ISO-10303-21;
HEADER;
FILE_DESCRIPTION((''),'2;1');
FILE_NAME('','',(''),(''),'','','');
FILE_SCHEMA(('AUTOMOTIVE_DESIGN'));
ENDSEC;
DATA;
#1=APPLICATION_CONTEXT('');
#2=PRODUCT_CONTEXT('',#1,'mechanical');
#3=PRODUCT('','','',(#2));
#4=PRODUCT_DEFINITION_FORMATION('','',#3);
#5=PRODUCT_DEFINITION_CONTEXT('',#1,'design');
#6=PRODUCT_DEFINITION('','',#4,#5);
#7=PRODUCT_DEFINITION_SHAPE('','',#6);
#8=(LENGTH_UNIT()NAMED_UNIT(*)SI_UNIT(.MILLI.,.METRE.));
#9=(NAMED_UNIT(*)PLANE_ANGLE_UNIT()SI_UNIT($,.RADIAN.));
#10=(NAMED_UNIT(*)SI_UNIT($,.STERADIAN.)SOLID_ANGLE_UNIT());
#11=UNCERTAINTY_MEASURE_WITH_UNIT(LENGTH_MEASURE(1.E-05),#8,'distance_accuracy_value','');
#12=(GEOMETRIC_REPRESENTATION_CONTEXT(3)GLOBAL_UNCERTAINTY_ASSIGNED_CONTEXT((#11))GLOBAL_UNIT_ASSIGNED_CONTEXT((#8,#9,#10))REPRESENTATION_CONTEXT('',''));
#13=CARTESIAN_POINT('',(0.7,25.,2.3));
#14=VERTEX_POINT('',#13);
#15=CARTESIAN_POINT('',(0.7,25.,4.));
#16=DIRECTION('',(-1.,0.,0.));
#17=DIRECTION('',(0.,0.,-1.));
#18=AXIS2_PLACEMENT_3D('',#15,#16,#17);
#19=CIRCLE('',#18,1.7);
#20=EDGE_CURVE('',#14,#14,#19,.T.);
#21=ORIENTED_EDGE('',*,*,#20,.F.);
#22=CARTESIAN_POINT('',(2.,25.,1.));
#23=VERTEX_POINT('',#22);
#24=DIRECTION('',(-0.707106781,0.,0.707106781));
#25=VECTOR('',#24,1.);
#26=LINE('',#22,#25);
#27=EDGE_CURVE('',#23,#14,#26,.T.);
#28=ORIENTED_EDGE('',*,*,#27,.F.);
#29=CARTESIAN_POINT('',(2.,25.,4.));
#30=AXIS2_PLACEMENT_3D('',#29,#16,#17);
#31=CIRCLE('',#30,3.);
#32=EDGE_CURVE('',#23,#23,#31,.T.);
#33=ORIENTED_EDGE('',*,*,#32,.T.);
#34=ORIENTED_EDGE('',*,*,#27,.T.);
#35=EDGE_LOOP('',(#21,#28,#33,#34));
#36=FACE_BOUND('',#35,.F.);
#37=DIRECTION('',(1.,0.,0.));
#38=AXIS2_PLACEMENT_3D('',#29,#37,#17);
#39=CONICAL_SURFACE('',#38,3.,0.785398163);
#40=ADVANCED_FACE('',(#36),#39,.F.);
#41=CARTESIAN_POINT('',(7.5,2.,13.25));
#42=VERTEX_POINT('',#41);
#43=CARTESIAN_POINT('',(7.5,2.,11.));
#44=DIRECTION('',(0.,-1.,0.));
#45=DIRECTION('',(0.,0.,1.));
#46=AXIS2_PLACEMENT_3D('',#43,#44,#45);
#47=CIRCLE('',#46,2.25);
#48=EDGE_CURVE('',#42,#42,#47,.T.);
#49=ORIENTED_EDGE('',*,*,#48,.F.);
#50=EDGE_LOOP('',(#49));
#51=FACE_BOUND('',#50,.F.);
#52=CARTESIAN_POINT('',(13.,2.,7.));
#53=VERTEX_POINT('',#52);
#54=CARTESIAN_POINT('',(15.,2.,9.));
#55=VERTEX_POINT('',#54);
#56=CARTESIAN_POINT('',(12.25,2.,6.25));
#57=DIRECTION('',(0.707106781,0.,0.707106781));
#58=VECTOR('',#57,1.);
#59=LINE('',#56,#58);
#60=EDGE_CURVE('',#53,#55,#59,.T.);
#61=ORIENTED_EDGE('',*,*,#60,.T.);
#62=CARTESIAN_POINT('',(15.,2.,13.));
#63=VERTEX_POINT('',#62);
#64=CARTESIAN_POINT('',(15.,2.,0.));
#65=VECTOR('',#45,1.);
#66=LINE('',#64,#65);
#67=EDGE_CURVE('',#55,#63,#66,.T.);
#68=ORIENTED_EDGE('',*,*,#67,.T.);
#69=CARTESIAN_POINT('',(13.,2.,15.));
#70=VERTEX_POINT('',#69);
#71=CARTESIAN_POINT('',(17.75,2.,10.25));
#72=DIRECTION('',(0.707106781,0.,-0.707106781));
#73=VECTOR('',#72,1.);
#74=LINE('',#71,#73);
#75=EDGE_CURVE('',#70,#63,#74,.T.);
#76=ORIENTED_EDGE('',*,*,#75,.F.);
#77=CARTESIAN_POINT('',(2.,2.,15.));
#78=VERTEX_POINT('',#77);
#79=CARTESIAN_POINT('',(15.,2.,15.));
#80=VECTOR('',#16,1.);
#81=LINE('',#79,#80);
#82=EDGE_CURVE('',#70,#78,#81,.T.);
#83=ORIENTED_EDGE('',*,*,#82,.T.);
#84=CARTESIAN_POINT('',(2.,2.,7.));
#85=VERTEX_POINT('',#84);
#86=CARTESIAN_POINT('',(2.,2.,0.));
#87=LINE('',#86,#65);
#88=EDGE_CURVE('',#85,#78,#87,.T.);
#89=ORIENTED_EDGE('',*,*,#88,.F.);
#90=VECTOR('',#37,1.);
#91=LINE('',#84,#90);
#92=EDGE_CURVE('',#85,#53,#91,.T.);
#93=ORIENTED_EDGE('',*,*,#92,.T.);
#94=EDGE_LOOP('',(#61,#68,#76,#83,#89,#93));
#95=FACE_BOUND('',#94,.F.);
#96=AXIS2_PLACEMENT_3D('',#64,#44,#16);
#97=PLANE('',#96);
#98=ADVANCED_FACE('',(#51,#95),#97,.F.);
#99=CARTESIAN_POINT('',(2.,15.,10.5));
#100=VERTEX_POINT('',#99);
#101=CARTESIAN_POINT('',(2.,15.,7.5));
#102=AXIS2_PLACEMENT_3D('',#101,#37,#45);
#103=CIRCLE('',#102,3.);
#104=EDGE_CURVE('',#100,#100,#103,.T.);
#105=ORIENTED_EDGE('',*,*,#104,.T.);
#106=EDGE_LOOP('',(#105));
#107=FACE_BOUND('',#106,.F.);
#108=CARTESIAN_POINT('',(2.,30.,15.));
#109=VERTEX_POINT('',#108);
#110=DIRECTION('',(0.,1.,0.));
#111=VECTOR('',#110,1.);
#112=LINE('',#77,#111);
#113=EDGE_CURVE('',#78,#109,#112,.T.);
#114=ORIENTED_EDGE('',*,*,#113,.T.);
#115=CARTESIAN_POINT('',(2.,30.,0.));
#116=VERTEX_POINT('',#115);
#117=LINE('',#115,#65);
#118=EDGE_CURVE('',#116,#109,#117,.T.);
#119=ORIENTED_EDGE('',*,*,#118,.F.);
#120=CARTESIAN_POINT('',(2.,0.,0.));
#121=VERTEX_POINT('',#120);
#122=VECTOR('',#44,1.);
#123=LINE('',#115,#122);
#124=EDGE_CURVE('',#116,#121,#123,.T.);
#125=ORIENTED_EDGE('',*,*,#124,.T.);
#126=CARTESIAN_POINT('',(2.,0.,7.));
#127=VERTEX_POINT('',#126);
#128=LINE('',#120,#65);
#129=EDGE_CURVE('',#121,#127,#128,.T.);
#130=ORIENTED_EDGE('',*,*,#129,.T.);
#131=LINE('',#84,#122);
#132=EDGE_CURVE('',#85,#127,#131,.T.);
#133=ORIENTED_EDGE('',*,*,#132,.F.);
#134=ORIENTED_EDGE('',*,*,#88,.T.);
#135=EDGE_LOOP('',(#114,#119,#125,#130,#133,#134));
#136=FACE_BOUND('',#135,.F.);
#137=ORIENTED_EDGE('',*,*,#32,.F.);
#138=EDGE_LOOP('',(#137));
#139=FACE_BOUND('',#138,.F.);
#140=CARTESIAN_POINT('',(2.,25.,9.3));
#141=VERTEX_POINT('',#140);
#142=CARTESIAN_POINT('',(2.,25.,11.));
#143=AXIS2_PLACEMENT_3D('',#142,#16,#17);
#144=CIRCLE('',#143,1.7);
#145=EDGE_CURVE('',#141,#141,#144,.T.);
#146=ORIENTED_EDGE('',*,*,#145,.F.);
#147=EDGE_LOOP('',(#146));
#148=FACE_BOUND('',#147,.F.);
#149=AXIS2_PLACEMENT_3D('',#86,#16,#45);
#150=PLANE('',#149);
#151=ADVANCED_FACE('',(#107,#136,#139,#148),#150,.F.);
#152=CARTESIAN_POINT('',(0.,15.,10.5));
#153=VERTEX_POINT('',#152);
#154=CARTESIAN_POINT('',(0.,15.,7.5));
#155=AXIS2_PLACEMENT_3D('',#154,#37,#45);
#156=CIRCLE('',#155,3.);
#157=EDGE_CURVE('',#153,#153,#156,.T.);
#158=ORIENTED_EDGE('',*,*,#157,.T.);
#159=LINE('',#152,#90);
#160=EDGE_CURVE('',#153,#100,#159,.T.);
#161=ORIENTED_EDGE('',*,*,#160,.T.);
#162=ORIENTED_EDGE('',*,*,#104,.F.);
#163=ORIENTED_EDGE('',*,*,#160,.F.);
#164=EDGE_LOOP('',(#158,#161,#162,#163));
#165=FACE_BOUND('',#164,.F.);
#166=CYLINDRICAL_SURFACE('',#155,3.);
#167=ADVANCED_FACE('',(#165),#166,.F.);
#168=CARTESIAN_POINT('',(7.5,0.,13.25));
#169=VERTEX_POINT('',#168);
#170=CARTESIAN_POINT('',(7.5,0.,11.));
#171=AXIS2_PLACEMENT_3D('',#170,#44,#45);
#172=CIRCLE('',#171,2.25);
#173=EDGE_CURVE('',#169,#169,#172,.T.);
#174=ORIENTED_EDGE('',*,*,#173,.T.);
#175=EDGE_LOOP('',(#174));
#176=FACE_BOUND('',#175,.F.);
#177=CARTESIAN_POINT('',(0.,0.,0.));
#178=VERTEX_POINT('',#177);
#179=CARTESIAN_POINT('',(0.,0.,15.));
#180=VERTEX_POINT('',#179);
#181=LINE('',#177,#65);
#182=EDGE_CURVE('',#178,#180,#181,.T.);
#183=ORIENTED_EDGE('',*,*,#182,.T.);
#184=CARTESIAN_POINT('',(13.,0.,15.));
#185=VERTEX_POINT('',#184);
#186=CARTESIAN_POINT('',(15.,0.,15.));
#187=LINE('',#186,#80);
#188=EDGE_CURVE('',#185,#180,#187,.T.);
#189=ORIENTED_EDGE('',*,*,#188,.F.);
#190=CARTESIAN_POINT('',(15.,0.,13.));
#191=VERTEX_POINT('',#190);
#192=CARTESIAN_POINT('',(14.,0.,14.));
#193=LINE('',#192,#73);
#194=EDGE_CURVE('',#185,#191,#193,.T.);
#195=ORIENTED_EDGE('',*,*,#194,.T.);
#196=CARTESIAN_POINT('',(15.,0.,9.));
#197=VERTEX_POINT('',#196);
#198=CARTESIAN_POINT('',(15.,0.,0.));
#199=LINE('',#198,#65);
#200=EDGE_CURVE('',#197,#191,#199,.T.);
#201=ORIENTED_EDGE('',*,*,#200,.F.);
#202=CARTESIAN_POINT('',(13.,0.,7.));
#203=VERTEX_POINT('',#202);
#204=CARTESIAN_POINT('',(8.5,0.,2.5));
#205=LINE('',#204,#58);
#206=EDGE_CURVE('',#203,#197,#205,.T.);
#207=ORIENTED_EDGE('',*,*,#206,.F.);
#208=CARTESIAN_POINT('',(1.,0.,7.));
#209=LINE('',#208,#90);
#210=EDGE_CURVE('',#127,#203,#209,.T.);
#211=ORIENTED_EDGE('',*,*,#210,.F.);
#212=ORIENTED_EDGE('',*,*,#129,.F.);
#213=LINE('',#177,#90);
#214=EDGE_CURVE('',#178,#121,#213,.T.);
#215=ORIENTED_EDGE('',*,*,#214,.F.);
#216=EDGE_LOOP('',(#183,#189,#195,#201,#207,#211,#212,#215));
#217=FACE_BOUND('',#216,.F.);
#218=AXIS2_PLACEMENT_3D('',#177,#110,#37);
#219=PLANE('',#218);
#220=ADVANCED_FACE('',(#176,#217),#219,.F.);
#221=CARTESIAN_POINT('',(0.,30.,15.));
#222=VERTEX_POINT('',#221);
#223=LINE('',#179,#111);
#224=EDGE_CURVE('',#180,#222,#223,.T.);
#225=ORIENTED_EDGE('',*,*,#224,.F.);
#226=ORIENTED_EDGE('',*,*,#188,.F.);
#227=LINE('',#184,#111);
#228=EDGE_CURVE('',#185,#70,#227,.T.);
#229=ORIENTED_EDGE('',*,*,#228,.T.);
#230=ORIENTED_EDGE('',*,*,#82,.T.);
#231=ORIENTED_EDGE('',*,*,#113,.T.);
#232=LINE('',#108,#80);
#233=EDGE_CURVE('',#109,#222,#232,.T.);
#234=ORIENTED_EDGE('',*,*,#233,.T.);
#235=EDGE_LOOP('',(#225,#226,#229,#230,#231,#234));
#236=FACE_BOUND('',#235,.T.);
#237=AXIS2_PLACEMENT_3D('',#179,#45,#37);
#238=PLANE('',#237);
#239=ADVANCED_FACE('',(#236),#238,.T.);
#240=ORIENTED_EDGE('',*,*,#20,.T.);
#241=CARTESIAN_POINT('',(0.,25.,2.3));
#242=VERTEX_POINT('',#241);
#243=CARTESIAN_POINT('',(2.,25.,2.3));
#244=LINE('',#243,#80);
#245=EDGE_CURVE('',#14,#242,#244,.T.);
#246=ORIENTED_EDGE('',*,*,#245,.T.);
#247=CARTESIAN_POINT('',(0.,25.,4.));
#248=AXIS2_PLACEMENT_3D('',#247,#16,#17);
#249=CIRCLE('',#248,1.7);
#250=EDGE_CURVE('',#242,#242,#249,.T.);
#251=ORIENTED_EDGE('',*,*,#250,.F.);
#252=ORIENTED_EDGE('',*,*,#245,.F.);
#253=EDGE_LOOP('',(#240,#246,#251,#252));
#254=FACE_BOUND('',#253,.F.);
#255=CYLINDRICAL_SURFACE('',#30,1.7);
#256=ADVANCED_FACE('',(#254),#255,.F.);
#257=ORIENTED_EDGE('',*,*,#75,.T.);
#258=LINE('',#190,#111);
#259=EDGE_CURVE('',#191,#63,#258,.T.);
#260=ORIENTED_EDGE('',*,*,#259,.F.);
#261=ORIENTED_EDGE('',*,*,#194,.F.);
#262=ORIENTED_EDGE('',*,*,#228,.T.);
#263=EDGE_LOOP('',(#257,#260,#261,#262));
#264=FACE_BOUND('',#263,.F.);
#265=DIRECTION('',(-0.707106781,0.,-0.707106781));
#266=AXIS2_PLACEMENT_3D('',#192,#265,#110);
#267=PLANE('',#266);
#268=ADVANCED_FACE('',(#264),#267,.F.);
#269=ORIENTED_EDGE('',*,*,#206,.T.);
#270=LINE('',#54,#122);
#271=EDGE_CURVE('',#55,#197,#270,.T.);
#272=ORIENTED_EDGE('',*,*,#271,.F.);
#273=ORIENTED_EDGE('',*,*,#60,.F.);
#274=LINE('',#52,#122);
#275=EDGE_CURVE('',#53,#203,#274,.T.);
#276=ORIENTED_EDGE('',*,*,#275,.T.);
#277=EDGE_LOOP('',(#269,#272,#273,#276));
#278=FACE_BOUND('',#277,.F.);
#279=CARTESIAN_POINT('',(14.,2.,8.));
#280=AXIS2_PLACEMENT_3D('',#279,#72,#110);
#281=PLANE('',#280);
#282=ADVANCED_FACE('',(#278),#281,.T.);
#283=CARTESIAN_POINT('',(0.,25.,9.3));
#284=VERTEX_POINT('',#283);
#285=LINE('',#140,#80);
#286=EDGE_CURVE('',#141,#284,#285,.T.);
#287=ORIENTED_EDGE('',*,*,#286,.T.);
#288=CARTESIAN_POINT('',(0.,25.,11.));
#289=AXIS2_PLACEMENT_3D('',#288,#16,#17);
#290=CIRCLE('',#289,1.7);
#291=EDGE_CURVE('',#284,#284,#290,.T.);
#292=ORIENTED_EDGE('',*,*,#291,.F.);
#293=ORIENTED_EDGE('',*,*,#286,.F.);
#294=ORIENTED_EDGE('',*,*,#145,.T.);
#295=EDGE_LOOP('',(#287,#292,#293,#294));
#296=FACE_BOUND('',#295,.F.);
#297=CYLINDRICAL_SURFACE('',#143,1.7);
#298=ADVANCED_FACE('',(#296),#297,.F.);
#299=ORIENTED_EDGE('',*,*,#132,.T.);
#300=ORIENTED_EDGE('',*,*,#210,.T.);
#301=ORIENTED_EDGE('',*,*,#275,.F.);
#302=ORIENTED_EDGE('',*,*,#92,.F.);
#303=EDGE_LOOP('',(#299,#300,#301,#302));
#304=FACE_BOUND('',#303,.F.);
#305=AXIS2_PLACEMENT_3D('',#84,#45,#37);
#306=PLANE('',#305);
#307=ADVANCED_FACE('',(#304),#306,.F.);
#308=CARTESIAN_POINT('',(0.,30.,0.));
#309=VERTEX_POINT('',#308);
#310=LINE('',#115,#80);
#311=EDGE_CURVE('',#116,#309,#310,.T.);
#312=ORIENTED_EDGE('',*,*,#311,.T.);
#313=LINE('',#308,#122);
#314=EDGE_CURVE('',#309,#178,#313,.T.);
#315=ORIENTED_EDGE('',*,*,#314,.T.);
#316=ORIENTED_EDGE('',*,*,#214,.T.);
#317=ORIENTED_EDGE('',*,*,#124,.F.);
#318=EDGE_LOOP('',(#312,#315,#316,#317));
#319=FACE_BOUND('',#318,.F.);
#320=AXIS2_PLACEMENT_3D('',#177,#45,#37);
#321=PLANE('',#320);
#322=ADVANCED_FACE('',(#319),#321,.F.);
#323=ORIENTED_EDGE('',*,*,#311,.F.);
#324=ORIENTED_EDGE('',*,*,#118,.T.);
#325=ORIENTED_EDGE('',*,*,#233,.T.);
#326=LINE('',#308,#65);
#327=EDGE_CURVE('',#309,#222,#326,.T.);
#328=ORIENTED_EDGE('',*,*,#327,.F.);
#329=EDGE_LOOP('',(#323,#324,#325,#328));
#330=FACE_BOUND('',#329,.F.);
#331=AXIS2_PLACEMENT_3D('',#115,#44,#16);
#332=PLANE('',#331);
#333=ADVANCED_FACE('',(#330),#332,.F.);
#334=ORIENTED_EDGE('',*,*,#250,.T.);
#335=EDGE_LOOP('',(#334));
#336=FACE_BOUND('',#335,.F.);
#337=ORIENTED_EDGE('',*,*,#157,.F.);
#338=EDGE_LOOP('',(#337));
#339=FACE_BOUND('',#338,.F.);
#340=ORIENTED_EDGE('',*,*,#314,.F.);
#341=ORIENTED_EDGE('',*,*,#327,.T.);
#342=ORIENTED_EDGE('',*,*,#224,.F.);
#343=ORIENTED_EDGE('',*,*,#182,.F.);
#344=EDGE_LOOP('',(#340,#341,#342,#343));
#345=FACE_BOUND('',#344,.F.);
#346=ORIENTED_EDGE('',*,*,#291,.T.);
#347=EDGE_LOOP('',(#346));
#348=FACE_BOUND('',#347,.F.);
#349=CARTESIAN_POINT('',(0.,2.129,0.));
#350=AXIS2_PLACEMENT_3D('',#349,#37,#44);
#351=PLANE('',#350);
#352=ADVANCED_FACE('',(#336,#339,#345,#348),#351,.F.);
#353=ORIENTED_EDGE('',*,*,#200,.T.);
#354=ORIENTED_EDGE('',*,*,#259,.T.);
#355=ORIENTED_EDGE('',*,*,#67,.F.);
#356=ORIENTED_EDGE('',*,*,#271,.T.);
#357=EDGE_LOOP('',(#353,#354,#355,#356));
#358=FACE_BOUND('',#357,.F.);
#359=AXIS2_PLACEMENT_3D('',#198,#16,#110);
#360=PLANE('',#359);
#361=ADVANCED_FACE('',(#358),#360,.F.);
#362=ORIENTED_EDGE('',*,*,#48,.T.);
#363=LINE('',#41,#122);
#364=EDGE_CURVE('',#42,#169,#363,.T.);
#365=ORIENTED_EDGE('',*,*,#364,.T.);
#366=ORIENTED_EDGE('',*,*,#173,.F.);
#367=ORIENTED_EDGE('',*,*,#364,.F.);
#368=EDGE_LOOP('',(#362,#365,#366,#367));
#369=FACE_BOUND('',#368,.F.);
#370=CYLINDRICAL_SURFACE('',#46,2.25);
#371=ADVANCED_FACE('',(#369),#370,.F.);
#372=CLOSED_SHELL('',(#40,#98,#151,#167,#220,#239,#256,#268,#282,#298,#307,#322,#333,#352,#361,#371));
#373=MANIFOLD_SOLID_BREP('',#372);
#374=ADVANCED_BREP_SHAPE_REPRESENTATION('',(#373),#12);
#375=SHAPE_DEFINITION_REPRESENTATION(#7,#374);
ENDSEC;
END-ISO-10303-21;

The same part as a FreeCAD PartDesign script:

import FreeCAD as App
import Part
import Sketcher


def edges_at(feature, points):
    """Names of the edges that pass closest to the given points."""
    edges = feature.Shape.Edges
    near = lambda p: min(range(len(edges)), key=lambda i: edges[i].distToShape(Part.Vertex(*p))[0])
    return sorted({f"Edge{near(p) + 1}" for p in points})


def add_polygon(sketch, points):
    """Adds a closed chain of lines whose ends are joined by coincident constraints."""
    first, n = sketch.GeometryCount, len(points)
    for a, b in zip(points, points[1:] + points[:1]):
        sketch.addGeometry(Part.LineSegment(App.Vector(*a, 0), App.Vector(*b, 0)), False)
    for i in range(n):
        sketch.addConstraint(Sketcher.Constraint("Coincident", first + i, 2, first + (i + 1) % n, 1))

doc = App.newDocument("Part")
body = doc.addObject("PartDesign::Body", "Body")

# Sketch on XY plane
sketch1 = doc.addObject("Sketcher::SketchObject", "Sketch")
body.addObject(sketch1)
sketch1.AttachmentSupport = (doc.XY_Plane, [""])
sketch1.MapMode = "FlatFace"
add_polygon(sketch1, [(0, 30), (0, 0), (15, 0), (15, 2), (2, 2), (2, 30)])  # lines 0-5
sketch1.addConstraint(Sketcher.Constraint("Vertical", 0))
sketch1.addConstraint(Sketcher.Constraint("Horizontal", 1))
sketch1.addConstraint(Sketcher.Constraint("Vertical", 2))
sketch1.addConstraint(Sketcher.Constraint("Horizontal", 3))
sketch1.addConstraint(Sketcher.Constraint("Vertical", 4))
sketch1.addConstraint(Sketcher.Constraint("Horizontal", 5))
sketch1.addConstraint(Sketcher.Constraint("Coincident", 0, 2, -1, 1))
sketch1.addConstraint(Sketcher.Constraint("Equal", 5, 2))
sketch1.addConstraint(Sketcher.Constraint("DistanceX", 1, 1, 1, 2, 15.0))
sketch1.addConstraint(Sketcher.Constraint("DistanceX", 5, 2, 5, 1, 2.0))
sketch1.addConstraint(Sketcher.Constraint("DistanceY", 0, 2, 0, 1, 30.0))
pad1 = doc.addObject("PartDesign::Pad", "Pad")
body.addObject(pad1)
pad1.Profile = sketch1
pad1.Length = 15

# Sketch on YZ plane
sketch2 = doc.addObject("Sketcher::SketchObject", "Sketch001")
body.addObject(sketch2)
sketch2.AttachmentSupport = (doc.YZ_Plane, [""])
sketch2.MapMode = "FlatFace"
sketch2.addGeometry(Part.Circle(App.Vector(15, 7.5, 0), App.Vector(0, 0, 1), 3), False)
sketch2.addConstraint(Sketcher.Constraint("Diameter", 0, 6.0))
sketch2.addConstraint(Sketcher.Constraint("DistanceX", -1, 1, 0, 3, 15.0))
sketch2.addConstraint(Sketcher.Constraint("DistanceY", -1, 1, 0, 3, 7.5))
doc.recompute()
hole = doc.addObject("PartDesign::Hole", "Hole")
body.addObject(hole)
hole.Profile = sketch2
hole.ThreadType = "None"
hole.Diameter = 6
hole.DepthType = "ThroughAll"
hole.Reversed = True

# Sketch on XZ plane
sketch3 = doc.addObject("Sketcher::SketchObject", "Sketch002")
body.addObject(sketch3)
sketch3.AttachmentSupport = (doc.XZ_Plane, [""])
sketch3.MapMode = "FlatFace"
sketch3.AttachmentOffset = App.Placement(App.Vector(0, 0, -2), App.Rotation())
add_polygon(sketch3, [(15, 0), (2, 0), (2, 7), (15, 7)])  # lines 0-3
sketch3.addConstraint(Sketcher.Constraint("Horizontal", 0))
sketch3.addConstraint(Sketcher.Constraint("Vertical", 1))
sketch3.addConstraint(Sketcher.Constraint("Horizontal", 2))
sketch3.addConstraint(Sketcher.Constraint("Vertical", 3))
sketch3.addConstraint(Sketcher.Constraint("PointOnObject", 0, 2, -1))
sketch3.addConstraint(Sketcher.Constraint("DistanceX", 0, 2, 0, 1, 13.0))
sketch3.addConstraint(Sketcher.Constraint("DistanceY", 1, 1, 1, 2, 7.0))
sketch3.addConstraint(Sketcher.Constraint("DistanceX", -1, 1, 0, 2, 2.0))
pocket1 = doc.addObject("PartDesign::Pocket", "Pocket")
body.addObject(pocket1)
pocket1.Profile = sketch3
pocket1.Type = "ThroughAll"
pocket1.Reversed = True

# Sketch on YZ plane
sketch4 = doc.addObject("Sketcher::SketchObject", "Sketch003")
body.addObject(sketch4)
sketch4.AttachmentSupport = (doc.YZ_Plane, [""])
sketch4.MapMode = "FlatFace"
sketch4.AttachmentOffset = App.Placement(App.Vector(0, 0, 2), App.Rotation())
sketch4.addGeometry(Part.Circle(App.Vector(25, 11, 0), App.Vector(0, 0, 1), 1.7), False)
sketch4.addGeometry(Part.Circle(App.Vector(25, 4, 0), App.Vector(0, 0, 1), 1.7), False)
sketch4.addConstraint(Sketcher.Constraint("Equal", 0, 1))
sketch4.addConstraint(Sketcher.Constraint("Vertical", 0, 3, 1, 3))
sketch4.addConstraint(Sketcher.Constraint("Diameter", 0, 3.4))
sketch4.addConstraint(Sketcher.Constraint("DistanceX", -1, 1, 0, 3, 25.0))
sketch4.addConstraint(Sketcher.Constraint("DistanceY", -1, 1, 0, 3, 11.0))
sketch4.addConstraint(Sketcher.Constraint("DistanceY", -1, 1, 1, 3, 4.0))
doc.recompute()
hole2 = doc.addObject("PartDesign::Hole", "Hole001")
body.addObject(hole2)
hole2.Profile = sketch4
hole2.ThreadType = "None"
hole2.Diameter = 3.4
hole2.DepthType = "ThroughAll"

# Sketch on XZ plane
sketch5 = doc.addObject("Sketcher::SketchObject", "Sketch004")
body.addObject(sketch5)
sketch5.AttachmentSupport = (doc.XZ_Plane, [""])
sketch5.MapMode = "FlatFace"
sketch5.AttachmentOffset = App.Placement(App.Vector(0, 0, -2), App.Rotation())
sketch5.addGeometry(Part.Circle(App.Vector(7.5, 11, 0), App.Vector(0, 0, 1), 2.2), False)
sketch5.addConstraint(Sketcher.Constraint("Diameter", 0, 4.5))
sketch5.addConstraint(Sketcher.Constraint("DistanceY", -1, 1, 0, 3, 11.0))
sketch5.addConstraint(Sketcher.Constraint("DistanceX", -1, 1, 0, 3, 7.5))
doc.recompute()
hole3 = doc.addObject("PartDesign::Hole", "Hole002")
body.addObject(hole3)
hole3.Profile = sketch5
hole3.ThreadType = "None"
hole3.Diameter = 4.5
hole3.DepthType = "ThroughAll"
hole3.Reversed = True

# Sketch on YZ plane
sketch6 = doc.addObject("Sketcher::SketchObject", "Sketch005")
body.addObject(sketch6)
sketch6.AttachmentSupport = (doc.YZ_Plane, [""])
sketch6.MapMode = "FlatFace"
sketch6.AttachmentOffset = App.Placement(App.Vector(0, 0, 2), App.Rotation())
sketch6.addGeometry(Part.Circle(App.Vector(25, 4, 0), App.Vector(0, 0, 1), 1.7), False)
sketch6.addConstraint(Sketcher.Constraint("Diameter", 0, 3.4))
sketch6.addConstraint(Sketcher.Constraint("DistanceX", -1, 1, 0, 3, 25.0))
sketch6.addConstraint(Sketcher.Constraint("DistanceY", -1, 1, 0, 3, 4.0))
doc.recompute()
hole4 = doc.addObject("PartDesign::Hole", "Hole003")
body.addObject(hole4)
hole4.Profile = sketch6
hole4.ThreadType = "None"
hole4.Diameter = 3.4
hole4.DepthType = "ThroughAll"
hole4.HoleCutType = "Countersink"
hole4.HoleCutDiameter = 6
hole4.HoleCutCountersinkAngle = 90
doc.recompute()

chamfer = doc.addObject("PartDesign::Chamfer", "Chamfer")
body.addObject(chamfer)
chamfer.Base = (hole4, edges_at(hole4, [(15, 1, 15), (15, 1, 7)]))
chamfer.Size = 2

doc.recompute()
